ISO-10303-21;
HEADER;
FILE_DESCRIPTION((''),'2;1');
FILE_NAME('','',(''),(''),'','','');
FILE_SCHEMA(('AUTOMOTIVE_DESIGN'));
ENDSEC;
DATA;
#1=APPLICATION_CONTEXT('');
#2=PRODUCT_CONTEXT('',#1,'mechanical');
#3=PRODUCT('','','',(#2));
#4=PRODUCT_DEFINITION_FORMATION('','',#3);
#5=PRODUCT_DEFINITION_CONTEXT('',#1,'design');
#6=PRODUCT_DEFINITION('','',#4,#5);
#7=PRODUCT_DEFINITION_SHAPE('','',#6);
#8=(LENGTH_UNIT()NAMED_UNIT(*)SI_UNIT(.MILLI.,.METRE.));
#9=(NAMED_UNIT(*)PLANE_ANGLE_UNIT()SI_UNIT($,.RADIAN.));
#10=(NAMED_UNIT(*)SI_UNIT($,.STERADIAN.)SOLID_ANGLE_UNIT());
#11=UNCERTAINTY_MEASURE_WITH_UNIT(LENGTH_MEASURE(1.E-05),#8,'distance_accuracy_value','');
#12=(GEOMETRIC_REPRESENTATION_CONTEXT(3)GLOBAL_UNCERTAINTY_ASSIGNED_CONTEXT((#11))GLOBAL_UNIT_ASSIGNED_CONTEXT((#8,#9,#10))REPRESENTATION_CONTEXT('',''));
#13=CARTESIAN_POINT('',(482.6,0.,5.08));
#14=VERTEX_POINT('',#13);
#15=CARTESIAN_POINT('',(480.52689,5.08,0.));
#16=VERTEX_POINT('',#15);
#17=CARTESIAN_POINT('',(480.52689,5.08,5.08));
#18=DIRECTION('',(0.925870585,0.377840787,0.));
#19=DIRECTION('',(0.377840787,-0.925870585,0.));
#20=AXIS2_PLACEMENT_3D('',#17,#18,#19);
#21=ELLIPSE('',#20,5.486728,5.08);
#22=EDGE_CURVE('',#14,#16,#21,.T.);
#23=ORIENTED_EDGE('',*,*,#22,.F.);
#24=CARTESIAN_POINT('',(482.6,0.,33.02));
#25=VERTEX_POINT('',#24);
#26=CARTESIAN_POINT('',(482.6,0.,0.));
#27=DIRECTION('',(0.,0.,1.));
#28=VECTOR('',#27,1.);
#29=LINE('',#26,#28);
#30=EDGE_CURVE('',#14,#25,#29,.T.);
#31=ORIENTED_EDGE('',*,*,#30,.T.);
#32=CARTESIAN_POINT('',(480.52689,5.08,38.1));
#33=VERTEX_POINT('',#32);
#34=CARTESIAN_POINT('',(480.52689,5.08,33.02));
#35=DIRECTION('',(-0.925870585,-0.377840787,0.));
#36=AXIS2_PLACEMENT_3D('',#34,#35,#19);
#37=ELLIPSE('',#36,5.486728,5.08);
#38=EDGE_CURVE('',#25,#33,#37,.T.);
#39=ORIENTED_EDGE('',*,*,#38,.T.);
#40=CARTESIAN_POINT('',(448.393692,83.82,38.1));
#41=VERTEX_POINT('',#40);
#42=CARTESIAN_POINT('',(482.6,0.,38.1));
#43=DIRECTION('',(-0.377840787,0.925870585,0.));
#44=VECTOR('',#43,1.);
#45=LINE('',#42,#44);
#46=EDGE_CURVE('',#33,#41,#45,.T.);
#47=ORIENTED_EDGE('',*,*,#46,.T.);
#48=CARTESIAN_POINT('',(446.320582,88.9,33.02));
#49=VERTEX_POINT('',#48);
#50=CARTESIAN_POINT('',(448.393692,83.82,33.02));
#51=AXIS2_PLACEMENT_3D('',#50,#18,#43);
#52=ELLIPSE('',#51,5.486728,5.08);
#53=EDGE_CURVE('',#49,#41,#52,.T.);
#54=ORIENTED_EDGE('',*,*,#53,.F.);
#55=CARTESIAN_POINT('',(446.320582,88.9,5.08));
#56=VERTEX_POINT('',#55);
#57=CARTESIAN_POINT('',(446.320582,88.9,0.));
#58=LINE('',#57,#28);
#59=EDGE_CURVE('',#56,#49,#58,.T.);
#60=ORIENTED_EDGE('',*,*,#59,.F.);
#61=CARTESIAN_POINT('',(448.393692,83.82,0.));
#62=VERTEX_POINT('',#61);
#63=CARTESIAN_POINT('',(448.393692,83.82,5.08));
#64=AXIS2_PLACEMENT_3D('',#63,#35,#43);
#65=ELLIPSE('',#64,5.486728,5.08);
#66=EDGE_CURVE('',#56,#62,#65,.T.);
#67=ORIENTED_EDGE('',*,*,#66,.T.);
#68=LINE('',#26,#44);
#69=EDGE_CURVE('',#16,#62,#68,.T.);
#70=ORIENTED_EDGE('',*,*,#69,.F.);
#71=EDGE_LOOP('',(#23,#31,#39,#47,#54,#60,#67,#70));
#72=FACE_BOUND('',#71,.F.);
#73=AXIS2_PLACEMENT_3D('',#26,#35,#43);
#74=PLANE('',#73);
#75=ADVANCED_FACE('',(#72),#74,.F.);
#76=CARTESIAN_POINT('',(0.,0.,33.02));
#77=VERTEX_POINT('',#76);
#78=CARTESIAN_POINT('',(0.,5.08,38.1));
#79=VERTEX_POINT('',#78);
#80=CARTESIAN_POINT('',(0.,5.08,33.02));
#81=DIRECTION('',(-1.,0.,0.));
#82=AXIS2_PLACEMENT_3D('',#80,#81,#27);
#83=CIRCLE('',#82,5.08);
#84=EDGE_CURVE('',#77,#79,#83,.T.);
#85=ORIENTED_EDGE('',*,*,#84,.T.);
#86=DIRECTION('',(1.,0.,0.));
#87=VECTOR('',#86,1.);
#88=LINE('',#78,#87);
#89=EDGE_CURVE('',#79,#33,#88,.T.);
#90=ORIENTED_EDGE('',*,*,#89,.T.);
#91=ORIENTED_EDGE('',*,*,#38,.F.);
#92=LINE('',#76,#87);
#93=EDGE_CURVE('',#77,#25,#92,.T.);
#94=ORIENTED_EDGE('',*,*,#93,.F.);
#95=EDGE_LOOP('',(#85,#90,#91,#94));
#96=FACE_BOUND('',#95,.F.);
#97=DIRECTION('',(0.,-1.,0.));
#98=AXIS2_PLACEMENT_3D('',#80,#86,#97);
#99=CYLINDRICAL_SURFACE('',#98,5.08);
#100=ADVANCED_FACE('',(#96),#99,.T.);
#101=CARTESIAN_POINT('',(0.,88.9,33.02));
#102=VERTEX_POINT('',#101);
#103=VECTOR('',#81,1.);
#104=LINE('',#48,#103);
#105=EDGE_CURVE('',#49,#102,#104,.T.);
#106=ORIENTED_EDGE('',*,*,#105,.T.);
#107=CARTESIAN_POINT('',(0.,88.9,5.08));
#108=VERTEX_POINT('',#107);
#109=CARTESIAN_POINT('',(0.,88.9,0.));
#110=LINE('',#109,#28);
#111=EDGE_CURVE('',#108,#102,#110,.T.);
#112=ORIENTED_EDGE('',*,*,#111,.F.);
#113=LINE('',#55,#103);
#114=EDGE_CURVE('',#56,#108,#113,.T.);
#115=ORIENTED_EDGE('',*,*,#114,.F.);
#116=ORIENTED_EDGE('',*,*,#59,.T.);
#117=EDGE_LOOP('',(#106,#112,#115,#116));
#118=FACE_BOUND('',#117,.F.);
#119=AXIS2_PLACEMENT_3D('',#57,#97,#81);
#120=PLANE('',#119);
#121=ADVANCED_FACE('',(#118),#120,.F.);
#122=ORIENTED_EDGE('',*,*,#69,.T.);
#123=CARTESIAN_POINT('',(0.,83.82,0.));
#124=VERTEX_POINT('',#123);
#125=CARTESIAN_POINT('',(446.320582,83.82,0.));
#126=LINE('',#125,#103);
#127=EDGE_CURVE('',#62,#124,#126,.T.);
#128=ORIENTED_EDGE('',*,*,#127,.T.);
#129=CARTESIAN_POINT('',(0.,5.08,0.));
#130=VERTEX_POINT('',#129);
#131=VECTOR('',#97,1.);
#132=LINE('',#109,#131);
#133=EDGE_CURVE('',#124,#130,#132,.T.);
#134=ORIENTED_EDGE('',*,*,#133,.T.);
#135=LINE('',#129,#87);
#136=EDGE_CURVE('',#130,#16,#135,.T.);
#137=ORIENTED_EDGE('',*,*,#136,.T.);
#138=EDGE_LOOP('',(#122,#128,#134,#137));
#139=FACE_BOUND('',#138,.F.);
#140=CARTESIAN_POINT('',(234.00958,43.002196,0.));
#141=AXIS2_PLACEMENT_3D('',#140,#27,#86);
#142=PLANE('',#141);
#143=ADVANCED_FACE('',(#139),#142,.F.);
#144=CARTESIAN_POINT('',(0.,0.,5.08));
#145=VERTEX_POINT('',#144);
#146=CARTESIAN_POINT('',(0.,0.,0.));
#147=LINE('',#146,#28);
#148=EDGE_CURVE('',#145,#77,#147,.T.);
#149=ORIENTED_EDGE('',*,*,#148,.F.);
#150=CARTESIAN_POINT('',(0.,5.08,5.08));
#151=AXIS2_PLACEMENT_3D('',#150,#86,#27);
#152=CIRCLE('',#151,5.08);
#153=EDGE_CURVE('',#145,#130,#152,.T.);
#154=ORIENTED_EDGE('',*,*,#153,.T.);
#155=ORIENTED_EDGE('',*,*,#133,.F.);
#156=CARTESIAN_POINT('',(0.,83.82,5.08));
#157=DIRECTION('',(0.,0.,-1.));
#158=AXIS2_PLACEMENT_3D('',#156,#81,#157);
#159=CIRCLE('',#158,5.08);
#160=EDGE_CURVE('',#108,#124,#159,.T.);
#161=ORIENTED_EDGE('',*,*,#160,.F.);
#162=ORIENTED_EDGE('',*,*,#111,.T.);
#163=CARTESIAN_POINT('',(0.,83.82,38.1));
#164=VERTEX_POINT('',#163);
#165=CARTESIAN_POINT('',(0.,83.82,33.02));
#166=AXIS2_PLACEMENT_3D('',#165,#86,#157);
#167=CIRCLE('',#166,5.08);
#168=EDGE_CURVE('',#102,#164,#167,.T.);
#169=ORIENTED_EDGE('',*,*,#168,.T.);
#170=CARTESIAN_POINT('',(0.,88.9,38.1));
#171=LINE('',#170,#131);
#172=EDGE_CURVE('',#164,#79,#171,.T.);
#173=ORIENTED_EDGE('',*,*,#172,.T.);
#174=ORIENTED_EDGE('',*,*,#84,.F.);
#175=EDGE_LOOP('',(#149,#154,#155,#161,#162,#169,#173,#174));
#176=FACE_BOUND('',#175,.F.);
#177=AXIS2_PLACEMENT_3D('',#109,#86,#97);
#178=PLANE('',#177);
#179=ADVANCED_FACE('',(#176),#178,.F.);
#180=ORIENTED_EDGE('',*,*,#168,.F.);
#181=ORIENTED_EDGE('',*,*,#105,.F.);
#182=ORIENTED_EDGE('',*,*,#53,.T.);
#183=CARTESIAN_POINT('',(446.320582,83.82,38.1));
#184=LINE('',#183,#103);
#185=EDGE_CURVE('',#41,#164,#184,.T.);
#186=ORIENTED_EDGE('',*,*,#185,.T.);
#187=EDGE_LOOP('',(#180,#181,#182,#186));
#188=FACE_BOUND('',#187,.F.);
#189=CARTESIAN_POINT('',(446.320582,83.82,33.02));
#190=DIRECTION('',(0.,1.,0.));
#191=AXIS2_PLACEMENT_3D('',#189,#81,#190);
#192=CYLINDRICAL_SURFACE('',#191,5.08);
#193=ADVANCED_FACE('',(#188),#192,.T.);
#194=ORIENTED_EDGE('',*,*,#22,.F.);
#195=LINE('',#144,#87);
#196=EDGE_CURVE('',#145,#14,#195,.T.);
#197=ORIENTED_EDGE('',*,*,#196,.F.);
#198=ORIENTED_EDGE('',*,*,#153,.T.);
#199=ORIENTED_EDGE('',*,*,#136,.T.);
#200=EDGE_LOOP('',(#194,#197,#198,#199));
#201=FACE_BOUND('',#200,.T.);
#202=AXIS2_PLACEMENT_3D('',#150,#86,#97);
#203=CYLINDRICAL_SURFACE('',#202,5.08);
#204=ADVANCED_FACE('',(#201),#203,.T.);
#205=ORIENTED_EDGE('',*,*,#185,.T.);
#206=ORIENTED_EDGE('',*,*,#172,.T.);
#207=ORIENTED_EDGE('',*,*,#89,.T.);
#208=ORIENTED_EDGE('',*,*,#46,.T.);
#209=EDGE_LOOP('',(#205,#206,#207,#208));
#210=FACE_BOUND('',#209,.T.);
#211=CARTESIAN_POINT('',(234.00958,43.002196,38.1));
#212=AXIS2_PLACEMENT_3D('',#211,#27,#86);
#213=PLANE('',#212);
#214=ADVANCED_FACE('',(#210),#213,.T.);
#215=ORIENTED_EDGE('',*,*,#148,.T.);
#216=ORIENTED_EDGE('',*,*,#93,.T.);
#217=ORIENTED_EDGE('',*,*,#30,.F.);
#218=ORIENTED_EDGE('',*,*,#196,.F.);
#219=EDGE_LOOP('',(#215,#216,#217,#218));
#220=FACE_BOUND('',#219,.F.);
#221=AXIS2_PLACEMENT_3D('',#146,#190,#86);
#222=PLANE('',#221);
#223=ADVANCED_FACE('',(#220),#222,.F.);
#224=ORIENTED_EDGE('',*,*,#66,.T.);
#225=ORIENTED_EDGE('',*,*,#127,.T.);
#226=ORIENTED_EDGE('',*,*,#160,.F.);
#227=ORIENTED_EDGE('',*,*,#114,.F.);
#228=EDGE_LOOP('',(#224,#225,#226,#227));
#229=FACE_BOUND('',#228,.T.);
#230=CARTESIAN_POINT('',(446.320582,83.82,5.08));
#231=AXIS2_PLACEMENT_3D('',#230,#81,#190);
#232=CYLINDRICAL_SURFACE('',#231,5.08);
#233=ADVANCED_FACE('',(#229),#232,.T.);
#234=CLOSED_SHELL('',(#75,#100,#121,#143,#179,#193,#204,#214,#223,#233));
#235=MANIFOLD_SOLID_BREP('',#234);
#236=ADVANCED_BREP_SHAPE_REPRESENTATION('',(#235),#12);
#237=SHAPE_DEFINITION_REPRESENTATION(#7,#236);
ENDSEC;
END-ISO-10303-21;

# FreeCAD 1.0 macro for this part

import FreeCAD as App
import Part
import Sketcher

V = App.Vector
Q = App.Units.Quantity


def edges_at(feature, points):
    """Names of the edges that pass closest to the given points."""
    edges = feature.Shape.Edges
    near = lambda p: min(range(len(edges)), key=lambda i: edges[i].distToShape(Part.Vertex(*p))[0])
    return sorted({f"Edge{near(p) + 1}" for p in points})

doc = App.newDocument("Part")
body = doc.addObject("PartDesign::Body", "Body")

sketch1 = body.newObject("Sketcher::SketchObject", "Sketch")
sketch1.AttachmentSupport = (doc.getObject("XY_Plane"), [""])
sketch1.MapMode = "FlatFace"
sketch1.addGeometry(Part.LineSegment(V(446, 89, 0), V(0, 89, 0)), False)
sketch1.addGeometry(Part.LineSegment(V(0, 89, 0), V(0, 0, 0)), False)
sketch1.addGeometry(Part.LineSegment(V(0, 0, 0), V(483, 0, 0)), False)
sketch1.addGeometry(Part.LineSegment(V(483, 0, 0), V(446, 89, 0)), False)
sketch1.addConstraint(Sketcher.Constraint("Coincident", 0, 2, 1, 1))
sketch1.addConstraint(Sketcher.Constraint("Coincident", 1, 2, 2, 1))
sketch1.addConstraint(Sketcher.Constraint("Coincident", 2, 2, 3, 1))
sketch1.addConstraint(Sketcher.Constraint("Coincident", 3, 2, 0, 1))
sketch1.addConstraint(Sketcher.Constraint("Horizontal", 0))
sketch1.addConstraint(Sketcher.Constraint("Vertical", 1))
sketch1.addConstraint(Sketcher.Constraint("Horizontal", 2))
sketch1.addConstraint(Sketcher.Constraint("Coincident", 1, 2, -1, 1))
sketch1.addConstraint(Sketcher.Constraint("DistanceX", 2, 1, 2, 2, Q("19 in")))
sketch1.addConstraint(Sketcher.Constraint("DistanceY", 1, 2, 1, 1, Q("3.5 in")))
sketch1.addConstraint(Sketcher.Constraint("Angle", 3, Q("112.2 deg")))
pad1 = body.newObject("PartDesign::Pad", "Pad")
pad1.Profile = sketch1
pad1.Length = Q("1.5 in")
doc.recompute()

fillet = body.newObject("PartDesign::Fillet", "Fillet")
fillet.Base = (pad1, edges_at(pad1, [
    (223.16, 88.9, 38.1),
    (241.3, 0, 38.1),
    (223.16, 88.9, 0),
    (241.3, 0, 0),
]))
fillet.Radius = Q("0.2 in")

doc.recompute()
